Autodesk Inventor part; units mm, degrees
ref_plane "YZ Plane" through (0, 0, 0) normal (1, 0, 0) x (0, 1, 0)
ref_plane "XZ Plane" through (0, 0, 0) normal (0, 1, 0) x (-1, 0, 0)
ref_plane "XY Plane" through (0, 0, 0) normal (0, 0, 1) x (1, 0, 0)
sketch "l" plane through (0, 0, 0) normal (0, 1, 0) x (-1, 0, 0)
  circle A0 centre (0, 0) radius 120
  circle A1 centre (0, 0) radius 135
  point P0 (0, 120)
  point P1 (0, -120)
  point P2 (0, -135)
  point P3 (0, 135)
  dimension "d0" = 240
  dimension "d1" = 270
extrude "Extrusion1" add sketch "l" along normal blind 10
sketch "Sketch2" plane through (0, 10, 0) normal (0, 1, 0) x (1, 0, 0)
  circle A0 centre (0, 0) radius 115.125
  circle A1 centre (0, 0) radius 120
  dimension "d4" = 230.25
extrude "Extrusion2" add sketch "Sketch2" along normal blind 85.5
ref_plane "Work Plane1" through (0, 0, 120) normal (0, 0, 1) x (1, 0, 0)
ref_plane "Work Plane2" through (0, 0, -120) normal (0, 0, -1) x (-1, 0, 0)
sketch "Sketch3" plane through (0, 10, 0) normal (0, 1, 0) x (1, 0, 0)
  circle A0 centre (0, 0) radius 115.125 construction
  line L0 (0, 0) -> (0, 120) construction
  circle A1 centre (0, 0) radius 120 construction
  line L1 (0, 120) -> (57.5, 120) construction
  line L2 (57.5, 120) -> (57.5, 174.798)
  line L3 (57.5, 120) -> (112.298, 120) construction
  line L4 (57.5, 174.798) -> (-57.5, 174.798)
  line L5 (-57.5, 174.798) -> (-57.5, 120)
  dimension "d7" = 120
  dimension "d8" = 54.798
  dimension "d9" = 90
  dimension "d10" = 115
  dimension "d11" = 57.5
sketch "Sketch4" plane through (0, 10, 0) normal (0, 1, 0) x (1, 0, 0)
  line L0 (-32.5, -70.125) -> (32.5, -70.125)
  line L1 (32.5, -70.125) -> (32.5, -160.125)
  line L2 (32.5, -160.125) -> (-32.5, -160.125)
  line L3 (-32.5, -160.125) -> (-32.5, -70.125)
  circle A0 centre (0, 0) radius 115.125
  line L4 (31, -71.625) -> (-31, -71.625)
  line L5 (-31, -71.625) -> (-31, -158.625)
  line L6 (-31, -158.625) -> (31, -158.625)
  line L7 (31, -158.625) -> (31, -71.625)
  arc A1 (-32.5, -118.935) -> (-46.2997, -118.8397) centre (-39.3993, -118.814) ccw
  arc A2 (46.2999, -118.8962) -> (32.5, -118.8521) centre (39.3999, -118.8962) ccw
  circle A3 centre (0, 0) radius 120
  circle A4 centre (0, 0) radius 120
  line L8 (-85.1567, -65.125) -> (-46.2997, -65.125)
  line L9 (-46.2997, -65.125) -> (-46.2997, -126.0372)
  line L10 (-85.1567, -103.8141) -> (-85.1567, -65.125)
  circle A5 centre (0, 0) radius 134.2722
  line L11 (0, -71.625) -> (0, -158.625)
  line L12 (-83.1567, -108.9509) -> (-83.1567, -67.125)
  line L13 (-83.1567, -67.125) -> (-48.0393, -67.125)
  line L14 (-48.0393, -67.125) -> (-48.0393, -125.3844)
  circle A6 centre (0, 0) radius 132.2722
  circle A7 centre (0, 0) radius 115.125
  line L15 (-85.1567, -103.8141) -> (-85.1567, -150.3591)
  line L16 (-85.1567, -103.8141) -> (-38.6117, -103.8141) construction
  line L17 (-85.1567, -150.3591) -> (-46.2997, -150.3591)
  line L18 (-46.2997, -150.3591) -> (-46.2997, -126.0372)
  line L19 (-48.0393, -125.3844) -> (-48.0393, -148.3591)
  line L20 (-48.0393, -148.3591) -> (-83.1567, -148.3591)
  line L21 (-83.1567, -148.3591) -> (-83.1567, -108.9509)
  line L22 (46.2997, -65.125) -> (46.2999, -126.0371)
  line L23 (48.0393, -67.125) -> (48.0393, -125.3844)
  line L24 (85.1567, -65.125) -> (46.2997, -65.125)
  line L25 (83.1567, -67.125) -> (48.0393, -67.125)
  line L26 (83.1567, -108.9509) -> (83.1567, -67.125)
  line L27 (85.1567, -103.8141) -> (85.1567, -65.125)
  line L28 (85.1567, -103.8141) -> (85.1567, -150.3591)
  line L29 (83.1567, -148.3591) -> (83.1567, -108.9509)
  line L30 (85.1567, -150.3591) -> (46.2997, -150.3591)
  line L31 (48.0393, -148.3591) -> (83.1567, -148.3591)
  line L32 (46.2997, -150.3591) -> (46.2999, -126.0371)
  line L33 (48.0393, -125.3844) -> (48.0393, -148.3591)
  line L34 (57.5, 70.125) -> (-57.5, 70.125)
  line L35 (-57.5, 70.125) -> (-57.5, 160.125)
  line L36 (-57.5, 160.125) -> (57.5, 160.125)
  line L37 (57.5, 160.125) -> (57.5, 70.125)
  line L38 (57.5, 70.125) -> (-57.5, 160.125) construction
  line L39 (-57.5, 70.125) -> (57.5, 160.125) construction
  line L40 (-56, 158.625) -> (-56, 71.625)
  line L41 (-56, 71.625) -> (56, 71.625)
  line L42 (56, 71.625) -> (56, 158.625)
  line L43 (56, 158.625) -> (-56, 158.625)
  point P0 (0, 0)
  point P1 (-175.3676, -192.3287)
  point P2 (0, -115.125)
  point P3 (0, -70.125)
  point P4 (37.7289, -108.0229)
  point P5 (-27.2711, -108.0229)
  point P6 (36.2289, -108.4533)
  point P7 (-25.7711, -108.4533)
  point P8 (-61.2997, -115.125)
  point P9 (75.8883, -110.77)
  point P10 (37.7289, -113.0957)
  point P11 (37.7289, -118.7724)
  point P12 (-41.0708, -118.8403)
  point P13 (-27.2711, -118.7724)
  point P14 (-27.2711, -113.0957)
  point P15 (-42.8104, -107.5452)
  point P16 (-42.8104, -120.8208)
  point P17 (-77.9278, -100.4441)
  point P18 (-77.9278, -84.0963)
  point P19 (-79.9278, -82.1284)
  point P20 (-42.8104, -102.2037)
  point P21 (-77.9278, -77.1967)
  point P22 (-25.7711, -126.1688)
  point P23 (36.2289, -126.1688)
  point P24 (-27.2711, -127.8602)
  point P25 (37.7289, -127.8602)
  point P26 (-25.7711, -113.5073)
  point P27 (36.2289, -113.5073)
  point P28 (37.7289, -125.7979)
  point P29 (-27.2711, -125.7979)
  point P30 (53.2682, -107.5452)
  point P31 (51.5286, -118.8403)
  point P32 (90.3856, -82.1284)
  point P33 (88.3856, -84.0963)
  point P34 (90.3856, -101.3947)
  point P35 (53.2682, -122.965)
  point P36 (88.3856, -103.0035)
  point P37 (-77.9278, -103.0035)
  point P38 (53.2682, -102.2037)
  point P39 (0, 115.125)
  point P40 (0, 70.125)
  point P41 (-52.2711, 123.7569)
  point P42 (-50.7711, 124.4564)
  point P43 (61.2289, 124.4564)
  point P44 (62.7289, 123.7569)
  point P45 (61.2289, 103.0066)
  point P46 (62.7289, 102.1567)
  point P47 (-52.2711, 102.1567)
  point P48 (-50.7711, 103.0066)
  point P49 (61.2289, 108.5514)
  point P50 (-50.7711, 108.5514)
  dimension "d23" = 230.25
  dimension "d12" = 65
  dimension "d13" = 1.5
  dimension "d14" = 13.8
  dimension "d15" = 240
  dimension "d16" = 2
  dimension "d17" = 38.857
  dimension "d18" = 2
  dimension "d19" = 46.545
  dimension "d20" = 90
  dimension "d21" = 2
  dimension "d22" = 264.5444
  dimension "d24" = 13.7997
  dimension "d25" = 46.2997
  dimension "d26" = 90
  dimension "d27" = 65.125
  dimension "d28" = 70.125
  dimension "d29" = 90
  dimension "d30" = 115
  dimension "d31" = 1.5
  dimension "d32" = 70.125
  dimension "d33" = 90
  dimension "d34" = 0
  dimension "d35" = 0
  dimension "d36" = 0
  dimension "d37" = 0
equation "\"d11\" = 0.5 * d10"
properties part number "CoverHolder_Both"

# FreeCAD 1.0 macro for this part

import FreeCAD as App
import Part
import Sketcher

V = App.Vector
Q = App.Units.Quantity

doc = App.newDocument("Part")
params = doc.addObject("Spreadsheet::Sheet", "Params")
for row, (alias, value) in enumerate([
    ("sketch1_diameter", "270 mm"),
    ("sketch1_diameter2", "240 mm"),
    ("pad1_length", "10 mm"),
    ("sketch2_diameter", "230.25 mm"),
    ("sketch2_diameter2", "240 mm"),
    ("pad2_length", "85.5 mm"),
], start=1):
    params.set(f"A{row}", alias)
    params.set(f"B{row}", "=" + value)
    params.setAlias(f"B{row}", alias)

body = doc.addObject("PartDesign::Body", "Body")
body.AllowCompound = True

# Sketch on XZ plane
sketch1 = body.newObject("Sketcher::SketchObject", "Sketch")
sketch1.AttachmentSupport = (doc.getObject("XZ_Plane"), [""])
sketch1.MapMode = "FlatFace"
sketch1.addGeometry([
    Part.Circle(V(0, 0, 0), V(0, 0, 1), 135),
    Part.Circle(V(0, 0, 0), V(0, 0, 1), 120),
], False)
sketch1.addConstraint([
    Sketcher.Constraint("Coincident", 0, 3, -1, 1),
    Sketcher.Constraint("Coincident", 1, 3, -1, 1),
    Sketcher.Constraint("Diameter", 0, Q("270 mm")),
    Sketcher.Constraint("Diameter", 1, Q("240 mm")),
])
sketch1.setExpression("Constraints[2]", "Params.sketch1_diameter")
sketch1.setExpression("Constraints[3]", "Params.sketch1_diameter2")
pad1 = body.newObject("PartDesign::Pad", "Pad")
pad1.Profile = sketch1
pad1.setExpression("Length", "Params.pad1_length")
pad1.Reversed = True

# Sketch on XZ plane
sketch2 = body.newObject("Sketcher::SketchObject", "Sketch001")
sketch2.AttachmentSupport = (doc.getObject("XZ_Plane"), [""])
sketch2.MapMode = "FlatFace"
sketch2.AttachmentOffset = App.Placement(V(0, 0, -10), App.Rotation())
sketch2.addGeometry([
    Part.Circle(V(0, 0, 0), V(0, 0, 1), 120),
    Part.Circle(V(0, 0, 0), V(0, 0, 1), 115.125),
], False)
sketch2.addConstraint([
    Sketcher.Constraint("Coincident", 0, 3, -1, 1),
    Sketcher.Constraint("Coincident", 1, 3, -1, 1),
    Sketcher.Constraint("Diameter", 1, Q("230.25 mm")),
    Sketcher.Constraint("Diameter", 0, Q("240 mm")),
])
sketch2.setExpression("Constraints[2]", "Params.sketch2_diameter")
sketch2.setExpression("Constraints[3]", "Params.sketch2_diameter2")
pad2 = body.newObject("PartDesign::Pad", "Pad001")
pad2.Profile = sketch2
pad2.setExpression("Length", "Params.pad2_length")
pad2.Reversed = True

doc.recompute()
